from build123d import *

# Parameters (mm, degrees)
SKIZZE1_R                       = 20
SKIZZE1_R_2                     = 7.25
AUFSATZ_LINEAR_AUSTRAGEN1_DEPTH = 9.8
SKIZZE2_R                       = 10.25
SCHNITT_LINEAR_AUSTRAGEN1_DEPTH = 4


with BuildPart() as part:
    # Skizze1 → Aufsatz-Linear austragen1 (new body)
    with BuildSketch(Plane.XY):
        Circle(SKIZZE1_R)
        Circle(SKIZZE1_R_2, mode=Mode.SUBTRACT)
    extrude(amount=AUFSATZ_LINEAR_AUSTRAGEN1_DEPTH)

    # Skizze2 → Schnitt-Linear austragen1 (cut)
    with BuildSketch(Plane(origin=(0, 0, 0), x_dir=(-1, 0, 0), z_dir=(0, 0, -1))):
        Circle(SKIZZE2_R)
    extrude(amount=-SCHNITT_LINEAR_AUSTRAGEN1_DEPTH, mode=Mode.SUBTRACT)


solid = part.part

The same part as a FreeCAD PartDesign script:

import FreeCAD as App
import Part
import Sketcher

V = App.Vector
Q = App.Units.Quantity

doc = App.newDocument("Part")
body = doc.addObject("PartDesign::Body", "Body")

sketch1 = doc.addObject("Sketcher::SketchObject", "Sketch")
body.addObject(sketch1)
sketch1.AttachmentSupport = (doc.XY_Plane, [""])
sketch1.MapMode = "FlatFace"
sketch1.addGeometry([
    Part.Circle(V(0, 0, 0), V(0, 0, 1), 20),
    Part.Circle(V(0, 0, 0), V(0, 0, 1), 7.25),
], False)
sketch1.addConstraint([
    Sketcher.Constraint("Coincident", 0, 3, -1, 1),
    Sketcher.Constraint("Coincident", 1, 3, -1, 1),
    Sketcher.Constraint("Diameter", 0, Q("40 mm")),
    Sketcher.Constraint("Diameter", 1, Q("14.5 mm")),
])
pad1 = doc.addObject("PartDesign::Pad", "Pad")
body.addObject(pad1)
pad1.Profile = sketch1
pad1.Length = 9.8

sketch2 = doc.addObject("Sketcher::SketchObject", "Sketch001")
body.addObject(sketch2)
sketch2.AttachmentSupport = (doc.XY_Plane, [""])
sketch2.MapMode = "FlatFace"
sketch2.addGeometry(Part.Circle(V(0, 0, 0), V(0, 0, 1), 10.25), False)
sketch2.addConstraint([
    Sketcher.Constraint("Coincident", 0, 3, -1, 1),
    Sketcher.Constraint("Diameter", 0, Q("20.5 mm")),
])
pocket1 = doc.addObject("PartDesign::Pocket", "Pocket")
body.addObject(pocket1)
pocket1.Profile = sketch2
pocket1.Length = 4
pocket1.Reversed = True

doc.recompute()
